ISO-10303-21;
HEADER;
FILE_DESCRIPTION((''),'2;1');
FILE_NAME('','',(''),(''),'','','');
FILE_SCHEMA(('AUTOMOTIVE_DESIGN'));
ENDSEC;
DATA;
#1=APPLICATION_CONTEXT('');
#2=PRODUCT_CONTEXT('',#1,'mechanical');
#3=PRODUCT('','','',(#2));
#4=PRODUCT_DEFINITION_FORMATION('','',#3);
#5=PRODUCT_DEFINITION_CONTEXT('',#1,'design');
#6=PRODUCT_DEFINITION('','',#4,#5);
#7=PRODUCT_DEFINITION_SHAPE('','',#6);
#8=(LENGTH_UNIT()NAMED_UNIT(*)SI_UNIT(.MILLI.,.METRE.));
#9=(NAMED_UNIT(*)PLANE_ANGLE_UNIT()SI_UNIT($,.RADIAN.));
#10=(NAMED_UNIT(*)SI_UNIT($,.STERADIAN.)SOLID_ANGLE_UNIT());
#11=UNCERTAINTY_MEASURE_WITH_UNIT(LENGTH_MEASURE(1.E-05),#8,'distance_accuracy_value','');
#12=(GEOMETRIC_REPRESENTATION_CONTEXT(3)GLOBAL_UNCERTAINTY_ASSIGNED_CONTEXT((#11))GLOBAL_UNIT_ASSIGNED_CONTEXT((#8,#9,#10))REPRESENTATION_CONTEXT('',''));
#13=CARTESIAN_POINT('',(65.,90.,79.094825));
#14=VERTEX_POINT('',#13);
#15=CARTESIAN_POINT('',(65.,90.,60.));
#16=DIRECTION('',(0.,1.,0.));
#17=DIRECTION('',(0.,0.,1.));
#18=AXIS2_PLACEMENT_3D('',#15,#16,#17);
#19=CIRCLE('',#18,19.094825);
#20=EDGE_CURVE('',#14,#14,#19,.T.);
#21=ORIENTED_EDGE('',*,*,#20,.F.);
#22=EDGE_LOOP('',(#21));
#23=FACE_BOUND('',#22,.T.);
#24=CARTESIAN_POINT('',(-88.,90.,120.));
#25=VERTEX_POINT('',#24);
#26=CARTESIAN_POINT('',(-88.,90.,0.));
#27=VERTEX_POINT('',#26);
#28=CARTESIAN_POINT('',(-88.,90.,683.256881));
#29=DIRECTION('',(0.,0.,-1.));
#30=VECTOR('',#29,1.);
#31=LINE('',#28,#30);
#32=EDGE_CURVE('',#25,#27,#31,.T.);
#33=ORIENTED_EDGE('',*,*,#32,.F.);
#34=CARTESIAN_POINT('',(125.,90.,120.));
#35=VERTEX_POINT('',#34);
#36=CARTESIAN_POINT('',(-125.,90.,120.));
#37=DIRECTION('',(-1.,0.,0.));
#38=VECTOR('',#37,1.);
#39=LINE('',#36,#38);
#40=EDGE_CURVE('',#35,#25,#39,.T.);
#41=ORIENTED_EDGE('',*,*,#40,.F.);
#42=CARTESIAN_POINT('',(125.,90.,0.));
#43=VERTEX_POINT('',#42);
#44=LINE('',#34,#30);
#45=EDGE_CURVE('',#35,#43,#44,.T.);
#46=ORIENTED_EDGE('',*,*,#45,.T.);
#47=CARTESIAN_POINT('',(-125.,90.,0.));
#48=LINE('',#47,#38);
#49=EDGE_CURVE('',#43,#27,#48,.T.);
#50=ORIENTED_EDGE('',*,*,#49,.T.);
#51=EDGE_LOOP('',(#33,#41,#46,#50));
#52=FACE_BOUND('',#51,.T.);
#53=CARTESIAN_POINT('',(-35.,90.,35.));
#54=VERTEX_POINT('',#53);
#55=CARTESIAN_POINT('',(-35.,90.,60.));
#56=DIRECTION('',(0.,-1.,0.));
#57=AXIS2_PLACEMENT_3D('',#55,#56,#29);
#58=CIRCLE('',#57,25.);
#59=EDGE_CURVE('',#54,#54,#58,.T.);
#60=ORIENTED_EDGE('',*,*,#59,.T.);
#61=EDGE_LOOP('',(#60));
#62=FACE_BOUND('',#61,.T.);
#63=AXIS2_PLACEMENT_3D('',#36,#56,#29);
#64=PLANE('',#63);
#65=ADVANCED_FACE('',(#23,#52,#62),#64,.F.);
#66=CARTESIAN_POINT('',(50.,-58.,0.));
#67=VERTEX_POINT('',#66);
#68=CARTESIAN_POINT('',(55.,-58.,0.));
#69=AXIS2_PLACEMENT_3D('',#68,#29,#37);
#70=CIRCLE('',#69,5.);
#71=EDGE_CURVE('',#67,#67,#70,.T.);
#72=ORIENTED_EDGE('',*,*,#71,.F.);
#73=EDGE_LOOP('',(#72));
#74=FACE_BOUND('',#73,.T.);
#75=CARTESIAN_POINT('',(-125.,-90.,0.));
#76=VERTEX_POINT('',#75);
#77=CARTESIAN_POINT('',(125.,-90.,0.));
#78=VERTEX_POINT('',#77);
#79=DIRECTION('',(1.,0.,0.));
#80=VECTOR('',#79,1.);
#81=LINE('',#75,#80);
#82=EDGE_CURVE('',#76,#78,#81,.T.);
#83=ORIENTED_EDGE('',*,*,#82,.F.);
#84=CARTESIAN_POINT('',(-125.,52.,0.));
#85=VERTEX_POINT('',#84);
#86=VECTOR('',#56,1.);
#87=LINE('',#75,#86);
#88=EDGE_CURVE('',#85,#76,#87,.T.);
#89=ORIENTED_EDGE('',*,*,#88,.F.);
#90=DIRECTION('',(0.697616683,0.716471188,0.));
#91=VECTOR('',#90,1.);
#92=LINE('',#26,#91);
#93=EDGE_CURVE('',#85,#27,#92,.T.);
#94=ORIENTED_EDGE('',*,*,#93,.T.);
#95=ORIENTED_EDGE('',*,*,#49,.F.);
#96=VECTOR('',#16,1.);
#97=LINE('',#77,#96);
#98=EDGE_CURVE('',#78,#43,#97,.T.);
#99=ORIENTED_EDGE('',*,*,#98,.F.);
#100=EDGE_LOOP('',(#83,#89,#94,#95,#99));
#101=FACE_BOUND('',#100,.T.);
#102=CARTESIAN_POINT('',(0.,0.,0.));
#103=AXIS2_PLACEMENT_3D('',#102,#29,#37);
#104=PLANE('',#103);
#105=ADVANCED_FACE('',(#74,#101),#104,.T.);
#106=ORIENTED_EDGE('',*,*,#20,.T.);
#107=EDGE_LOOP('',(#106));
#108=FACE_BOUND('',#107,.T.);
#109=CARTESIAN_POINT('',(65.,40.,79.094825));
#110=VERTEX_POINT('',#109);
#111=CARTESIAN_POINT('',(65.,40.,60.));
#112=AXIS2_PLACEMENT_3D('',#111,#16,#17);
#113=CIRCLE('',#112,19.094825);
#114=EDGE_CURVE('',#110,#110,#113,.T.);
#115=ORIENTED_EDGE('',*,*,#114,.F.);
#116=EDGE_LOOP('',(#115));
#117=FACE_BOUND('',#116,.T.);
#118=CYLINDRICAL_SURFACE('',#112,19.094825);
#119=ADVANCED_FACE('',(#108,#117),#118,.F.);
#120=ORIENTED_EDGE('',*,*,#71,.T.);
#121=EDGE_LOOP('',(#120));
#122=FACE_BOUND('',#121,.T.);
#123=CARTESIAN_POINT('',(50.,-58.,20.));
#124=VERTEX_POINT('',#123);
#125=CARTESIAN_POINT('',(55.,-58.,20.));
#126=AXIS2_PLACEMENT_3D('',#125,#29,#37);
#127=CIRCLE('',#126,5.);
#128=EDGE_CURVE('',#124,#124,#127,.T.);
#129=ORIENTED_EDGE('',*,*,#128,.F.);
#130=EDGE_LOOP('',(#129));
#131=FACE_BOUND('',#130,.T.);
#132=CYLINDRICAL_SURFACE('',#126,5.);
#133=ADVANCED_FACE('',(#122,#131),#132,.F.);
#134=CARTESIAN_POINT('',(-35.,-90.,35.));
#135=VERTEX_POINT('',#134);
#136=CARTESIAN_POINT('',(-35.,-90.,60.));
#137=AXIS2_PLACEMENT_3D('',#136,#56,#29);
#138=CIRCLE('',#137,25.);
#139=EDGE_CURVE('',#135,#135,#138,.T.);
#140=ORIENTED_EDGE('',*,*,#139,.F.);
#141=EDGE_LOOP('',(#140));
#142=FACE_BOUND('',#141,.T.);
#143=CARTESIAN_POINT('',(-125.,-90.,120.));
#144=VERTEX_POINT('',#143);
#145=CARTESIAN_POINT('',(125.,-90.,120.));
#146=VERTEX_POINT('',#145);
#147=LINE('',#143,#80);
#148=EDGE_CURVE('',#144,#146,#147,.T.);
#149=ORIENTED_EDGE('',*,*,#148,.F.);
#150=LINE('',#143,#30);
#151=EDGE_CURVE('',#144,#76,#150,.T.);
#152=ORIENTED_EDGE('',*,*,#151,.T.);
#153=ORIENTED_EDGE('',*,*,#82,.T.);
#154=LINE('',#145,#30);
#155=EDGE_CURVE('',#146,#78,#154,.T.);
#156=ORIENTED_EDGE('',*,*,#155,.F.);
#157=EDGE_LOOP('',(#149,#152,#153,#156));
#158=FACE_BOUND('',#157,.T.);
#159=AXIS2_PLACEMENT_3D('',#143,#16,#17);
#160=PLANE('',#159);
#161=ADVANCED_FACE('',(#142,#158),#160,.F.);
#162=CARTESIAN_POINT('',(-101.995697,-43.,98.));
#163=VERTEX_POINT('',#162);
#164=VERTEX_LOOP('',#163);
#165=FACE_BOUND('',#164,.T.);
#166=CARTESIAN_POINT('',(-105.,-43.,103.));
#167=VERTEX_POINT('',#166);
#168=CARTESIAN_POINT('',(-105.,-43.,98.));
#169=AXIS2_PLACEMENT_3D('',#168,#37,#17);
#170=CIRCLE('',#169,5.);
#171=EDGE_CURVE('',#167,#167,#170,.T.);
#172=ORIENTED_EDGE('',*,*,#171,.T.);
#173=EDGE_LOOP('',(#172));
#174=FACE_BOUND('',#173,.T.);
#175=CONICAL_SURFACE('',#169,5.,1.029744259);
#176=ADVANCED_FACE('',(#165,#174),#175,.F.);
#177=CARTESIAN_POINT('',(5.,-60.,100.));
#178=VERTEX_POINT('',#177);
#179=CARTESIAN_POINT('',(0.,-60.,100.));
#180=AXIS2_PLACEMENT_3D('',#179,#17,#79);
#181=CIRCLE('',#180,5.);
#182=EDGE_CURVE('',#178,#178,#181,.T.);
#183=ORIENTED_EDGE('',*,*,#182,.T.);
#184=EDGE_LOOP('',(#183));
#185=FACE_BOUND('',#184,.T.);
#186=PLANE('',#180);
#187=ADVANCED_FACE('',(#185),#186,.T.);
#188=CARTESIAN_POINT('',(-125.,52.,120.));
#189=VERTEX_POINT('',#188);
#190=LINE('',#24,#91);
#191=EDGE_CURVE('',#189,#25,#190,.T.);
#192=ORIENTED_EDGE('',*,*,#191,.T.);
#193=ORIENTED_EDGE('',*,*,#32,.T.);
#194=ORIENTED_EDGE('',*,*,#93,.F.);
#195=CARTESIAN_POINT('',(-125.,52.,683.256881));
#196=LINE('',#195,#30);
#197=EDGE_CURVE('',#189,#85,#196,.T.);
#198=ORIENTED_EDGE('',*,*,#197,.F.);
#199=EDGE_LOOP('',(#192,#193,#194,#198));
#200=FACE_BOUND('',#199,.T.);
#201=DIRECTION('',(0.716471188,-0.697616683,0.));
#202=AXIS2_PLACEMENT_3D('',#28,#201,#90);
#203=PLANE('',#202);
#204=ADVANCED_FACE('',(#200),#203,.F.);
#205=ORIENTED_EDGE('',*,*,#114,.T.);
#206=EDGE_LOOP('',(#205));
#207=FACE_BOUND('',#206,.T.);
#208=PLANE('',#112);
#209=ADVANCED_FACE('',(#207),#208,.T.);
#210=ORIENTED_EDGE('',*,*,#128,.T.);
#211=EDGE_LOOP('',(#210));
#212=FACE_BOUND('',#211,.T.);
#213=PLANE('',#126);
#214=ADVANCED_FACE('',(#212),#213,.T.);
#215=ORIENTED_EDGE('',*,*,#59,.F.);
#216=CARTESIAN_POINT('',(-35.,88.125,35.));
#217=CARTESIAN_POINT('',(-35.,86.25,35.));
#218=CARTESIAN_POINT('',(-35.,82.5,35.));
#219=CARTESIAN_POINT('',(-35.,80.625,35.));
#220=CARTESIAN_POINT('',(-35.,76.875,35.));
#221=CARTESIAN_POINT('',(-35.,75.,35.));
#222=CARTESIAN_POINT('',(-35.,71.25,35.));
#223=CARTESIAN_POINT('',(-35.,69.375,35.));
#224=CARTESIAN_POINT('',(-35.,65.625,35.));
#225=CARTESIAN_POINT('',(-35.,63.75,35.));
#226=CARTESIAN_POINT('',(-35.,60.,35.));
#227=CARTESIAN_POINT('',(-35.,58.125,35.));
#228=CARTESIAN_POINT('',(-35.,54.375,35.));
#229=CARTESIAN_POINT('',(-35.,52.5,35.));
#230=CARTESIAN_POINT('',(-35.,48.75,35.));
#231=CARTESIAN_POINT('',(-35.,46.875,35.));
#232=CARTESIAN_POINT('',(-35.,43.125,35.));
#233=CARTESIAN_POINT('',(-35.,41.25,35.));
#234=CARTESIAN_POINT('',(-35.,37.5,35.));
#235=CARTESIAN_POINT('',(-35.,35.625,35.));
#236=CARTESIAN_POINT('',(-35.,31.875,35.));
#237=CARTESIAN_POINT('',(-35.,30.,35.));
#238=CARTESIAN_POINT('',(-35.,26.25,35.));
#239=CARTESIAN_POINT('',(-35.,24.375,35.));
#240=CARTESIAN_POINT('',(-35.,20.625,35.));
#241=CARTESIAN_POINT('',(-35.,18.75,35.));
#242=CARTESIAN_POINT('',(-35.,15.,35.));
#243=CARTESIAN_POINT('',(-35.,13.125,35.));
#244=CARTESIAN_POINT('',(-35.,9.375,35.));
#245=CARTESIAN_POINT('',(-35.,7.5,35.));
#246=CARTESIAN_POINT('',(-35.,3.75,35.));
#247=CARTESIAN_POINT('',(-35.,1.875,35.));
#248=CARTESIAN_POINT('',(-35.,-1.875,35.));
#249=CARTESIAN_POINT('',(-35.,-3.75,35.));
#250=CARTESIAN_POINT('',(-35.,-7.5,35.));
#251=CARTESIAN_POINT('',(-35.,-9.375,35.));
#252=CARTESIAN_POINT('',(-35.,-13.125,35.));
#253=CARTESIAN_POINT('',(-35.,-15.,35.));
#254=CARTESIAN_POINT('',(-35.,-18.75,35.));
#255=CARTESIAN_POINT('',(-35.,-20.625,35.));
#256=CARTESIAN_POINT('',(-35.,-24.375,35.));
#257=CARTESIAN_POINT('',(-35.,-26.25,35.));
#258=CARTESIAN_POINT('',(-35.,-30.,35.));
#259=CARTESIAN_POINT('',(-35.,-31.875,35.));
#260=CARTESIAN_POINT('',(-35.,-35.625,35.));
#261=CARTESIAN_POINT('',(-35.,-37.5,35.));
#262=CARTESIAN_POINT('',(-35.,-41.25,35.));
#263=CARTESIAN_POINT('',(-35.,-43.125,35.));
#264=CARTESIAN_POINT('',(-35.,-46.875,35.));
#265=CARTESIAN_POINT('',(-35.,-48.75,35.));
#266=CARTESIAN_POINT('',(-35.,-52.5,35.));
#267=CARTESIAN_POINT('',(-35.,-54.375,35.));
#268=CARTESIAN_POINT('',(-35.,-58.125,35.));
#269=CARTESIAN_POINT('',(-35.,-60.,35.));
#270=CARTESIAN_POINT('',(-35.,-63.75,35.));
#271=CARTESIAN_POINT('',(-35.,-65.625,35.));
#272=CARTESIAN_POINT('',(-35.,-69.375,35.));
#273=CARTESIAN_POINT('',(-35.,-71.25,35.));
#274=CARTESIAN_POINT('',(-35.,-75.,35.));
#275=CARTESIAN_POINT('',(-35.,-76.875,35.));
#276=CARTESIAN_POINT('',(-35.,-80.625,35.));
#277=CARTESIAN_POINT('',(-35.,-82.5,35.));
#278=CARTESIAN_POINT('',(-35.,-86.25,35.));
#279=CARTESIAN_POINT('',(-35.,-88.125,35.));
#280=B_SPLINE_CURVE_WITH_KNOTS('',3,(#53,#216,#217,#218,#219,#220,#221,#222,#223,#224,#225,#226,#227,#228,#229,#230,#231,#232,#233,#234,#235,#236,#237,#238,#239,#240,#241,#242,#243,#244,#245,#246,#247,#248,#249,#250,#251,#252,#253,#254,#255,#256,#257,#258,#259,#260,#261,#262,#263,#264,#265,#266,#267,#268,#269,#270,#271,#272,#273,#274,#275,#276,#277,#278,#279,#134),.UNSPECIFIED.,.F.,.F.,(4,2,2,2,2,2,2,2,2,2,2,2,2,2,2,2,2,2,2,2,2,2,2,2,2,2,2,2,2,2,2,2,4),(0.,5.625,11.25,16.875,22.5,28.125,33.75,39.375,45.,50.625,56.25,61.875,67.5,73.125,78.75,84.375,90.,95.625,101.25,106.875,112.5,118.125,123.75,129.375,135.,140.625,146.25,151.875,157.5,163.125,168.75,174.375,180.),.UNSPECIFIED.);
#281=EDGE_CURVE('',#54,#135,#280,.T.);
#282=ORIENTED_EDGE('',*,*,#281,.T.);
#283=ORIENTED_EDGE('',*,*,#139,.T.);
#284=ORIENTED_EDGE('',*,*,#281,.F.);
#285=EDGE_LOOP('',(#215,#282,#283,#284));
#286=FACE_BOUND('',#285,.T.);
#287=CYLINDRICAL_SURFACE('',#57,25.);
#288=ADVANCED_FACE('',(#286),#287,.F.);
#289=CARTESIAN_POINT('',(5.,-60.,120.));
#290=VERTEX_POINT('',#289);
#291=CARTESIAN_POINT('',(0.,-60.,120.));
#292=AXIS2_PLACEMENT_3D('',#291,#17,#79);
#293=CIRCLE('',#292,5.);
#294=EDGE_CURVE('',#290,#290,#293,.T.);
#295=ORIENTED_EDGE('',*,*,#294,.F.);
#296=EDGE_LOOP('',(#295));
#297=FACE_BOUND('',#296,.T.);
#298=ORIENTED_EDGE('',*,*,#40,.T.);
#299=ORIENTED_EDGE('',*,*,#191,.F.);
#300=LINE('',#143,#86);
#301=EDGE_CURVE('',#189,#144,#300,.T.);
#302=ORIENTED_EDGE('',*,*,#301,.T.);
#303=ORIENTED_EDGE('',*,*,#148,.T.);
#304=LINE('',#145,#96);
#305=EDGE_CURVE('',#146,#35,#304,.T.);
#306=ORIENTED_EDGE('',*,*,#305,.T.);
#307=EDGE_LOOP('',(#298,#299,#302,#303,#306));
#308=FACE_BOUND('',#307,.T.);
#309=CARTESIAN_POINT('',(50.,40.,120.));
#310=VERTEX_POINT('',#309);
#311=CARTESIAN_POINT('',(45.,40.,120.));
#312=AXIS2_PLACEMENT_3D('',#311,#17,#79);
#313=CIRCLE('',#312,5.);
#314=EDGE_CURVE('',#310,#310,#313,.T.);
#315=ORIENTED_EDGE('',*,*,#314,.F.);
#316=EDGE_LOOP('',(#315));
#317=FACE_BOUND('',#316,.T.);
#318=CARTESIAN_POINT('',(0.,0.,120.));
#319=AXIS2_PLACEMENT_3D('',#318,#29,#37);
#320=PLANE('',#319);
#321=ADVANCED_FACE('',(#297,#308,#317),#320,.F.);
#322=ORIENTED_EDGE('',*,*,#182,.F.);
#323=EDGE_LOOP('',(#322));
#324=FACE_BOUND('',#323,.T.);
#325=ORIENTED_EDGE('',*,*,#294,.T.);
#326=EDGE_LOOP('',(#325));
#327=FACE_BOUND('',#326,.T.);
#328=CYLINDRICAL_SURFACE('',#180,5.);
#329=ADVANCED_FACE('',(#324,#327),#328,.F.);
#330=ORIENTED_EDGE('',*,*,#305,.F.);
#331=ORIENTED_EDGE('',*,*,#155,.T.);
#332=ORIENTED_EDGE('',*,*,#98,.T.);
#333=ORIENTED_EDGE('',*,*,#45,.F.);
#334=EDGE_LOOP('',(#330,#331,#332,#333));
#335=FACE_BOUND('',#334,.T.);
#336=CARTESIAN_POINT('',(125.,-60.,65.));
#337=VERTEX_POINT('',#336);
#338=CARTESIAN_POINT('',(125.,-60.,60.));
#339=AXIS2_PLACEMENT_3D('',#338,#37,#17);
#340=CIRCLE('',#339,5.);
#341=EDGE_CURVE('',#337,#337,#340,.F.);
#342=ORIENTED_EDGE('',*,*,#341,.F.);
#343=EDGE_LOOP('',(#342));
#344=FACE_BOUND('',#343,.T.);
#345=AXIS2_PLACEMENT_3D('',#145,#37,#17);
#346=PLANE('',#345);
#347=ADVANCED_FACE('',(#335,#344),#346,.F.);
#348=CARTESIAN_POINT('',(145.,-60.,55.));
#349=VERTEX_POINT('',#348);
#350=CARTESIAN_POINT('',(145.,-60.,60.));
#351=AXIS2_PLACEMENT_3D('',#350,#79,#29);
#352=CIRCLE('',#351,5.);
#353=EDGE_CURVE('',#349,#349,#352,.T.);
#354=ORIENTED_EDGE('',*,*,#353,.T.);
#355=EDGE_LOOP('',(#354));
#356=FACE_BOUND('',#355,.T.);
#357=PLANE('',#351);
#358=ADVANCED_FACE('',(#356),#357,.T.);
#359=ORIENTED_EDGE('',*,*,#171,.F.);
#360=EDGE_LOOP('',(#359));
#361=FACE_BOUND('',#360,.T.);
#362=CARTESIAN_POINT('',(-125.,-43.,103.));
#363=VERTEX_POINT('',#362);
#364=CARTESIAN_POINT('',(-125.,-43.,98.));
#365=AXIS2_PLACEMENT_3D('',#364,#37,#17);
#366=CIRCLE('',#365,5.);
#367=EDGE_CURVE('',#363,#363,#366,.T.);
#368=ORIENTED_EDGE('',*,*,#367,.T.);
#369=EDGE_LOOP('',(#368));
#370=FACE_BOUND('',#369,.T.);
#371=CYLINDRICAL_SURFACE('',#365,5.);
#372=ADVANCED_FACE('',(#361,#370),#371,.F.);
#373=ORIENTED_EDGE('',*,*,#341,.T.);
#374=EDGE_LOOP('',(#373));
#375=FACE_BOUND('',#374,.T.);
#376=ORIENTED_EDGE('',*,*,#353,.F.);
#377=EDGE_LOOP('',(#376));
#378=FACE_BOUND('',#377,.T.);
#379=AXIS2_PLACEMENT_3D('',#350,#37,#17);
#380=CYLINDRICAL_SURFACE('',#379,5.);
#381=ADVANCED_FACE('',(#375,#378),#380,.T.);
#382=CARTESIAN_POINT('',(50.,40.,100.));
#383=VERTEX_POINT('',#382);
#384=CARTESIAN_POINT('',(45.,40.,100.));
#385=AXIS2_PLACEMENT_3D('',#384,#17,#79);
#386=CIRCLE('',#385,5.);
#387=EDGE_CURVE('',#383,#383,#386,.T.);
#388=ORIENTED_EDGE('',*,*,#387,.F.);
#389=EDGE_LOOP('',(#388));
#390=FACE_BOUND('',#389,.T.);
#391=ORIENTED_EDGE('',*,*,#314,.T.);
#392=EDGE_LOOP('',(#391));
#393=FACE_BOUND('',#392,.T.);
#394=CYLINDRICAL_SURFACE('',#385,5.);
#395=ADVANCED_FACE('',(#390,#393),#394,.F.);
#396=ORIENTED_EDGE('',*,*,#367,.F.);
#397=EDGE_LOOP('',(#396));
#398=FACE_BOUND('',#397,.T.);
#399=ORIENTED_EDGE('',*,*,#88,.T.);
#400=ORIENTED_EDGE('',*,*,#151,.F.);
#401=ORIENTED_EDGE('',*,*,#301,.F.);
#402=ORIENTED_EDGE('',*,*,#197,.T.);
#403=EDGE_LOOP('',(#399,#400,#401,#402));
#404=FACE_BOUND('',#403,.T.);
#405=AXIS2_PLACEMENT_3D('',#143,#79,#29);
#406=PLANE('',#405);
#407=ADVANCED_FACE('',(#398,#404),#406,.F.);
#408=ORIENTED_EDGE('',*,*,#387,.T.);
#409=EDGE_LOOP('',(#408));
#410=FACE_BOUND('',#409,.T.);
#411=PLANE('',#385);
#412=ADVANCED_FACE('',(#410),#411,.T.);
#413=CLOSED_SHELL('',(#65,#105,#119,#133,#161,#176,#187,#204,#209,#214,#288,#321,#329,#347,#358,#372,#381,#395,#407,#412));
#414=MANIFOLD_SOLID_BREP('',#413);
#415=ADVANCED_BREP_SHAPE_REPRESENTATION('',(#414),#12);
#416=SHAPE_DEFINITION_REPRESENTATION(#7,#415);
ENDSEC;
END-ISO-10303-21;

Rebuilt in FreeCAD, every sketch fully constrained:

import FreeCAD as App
import Part
import Sketcher
from FreeCAD import Vector


def add_polygon(sketch, points):
    """Adds a closed chain of lines whose ends are joined by coincident constraints."""
    first, n = sketch.GeometryCount, len(points)
    for a, b in zip(points, points[1:] + points[:1]):
        sketch.addGeometry(Part.LineSegment(App.Vector(*a, 0), App.Vector(*b, 0)), False)
    for i in range(n):
        sketch.addConstraint(Sketcher.Constraint("Coincident", first + i, 2, first + (i + 1) % n, 1))

doc = App.newDocument("Part")
body = doc.addObject("PartDesign::Body", "Body")

sketch1 = body.newObject("Sketcher::SketchObject", "Sketch")
sketch1.AttachmentSupport = (doc.getObject("XY_Plane"), [""])
sketch1.MapMode = "FlatFace"
add_polygon(sketch1, [(-125, 90), (-125, -90), (125, -90), (125, 90)])
sketch1.addConstraint([
    Sketcher.Constraint("Vertical", 0),
    Sketcher.Constraint("Horizontal", 1),
    Sketcher.Constraint("Vertical", 2),
    Sketcher.Constraint("Horizontal", 3),
    Sketcher.Constraint("Symmetric", 0, 2, 2, 2, -1, 1),
    Sketcher.Constraint("DistanceX", 1, 1, 1, 2, 250.0),
    Sketcher.Constraint("DistanceY", 0, 2, 0, 1, 180.0),
])
pad1 = body.newObject("PartDesign::Pad", "Pad")
pad1.Profile = sketch1
pad1.Length = 120

sketch2 = body.newObject("Sketcher::SketchObject", "Sketch001")
sketch2.AttachmentSupport = (doc.getObject("XY_Plane"), [""])
sketch2.MapMode = "FlatFace"
sketch2.AttachmentOffset = App.Placement(Vector(0, 0, 120), App.Rotation())
add_polygon(sketch2, [(-533.124565, -367.154958), (320.124565, 509.154958), (-518.185352, 1325.404087), (-1371.434481, 449.094171)])
sketch2.addConstraint([
    Sketcher.Constraint("Perpendicular", 0, 1),
    Sketcher.Constraint("Perpendicular", 1, 2),
    Sketcher.Constraint("Perpendicular", 2, 3),
    Sketcher.Constraint("Distance", 1, 1170.053912),
    Sketcher.Constraint("DistanceY", -1, 1, 0, 2, 509.154958),
    Sketcher.Constraint("DistanceX", 1, 2, -1, 1, 518.185352),
    Sketcher.Constraint("DistanceX", 2, 2, -1, 1, 1371.434481),
    Sketcher.Constraint("DistanceY", -1, 1, 2, 2, 449.094171),
])
pocket1 = body.newObject("PartDesign::Pocket", "Pocket")
pocket1.Profile = sketch2
pocket1.Type = "ThroughAll"
pocket1.Midplane = True

sketch3 = body.newObject("Sketcher::SketchObject", "Sketch002")
sketch3.AttachmentSupport = (doc.getObject("XY_Plane"), [""])
sketch3.MapMode = "FlatFace"
sketch3.AttachmentOffset = App.Placement(Vector(0, 0, 120), App.Rotation())
sketch3.addGeometry(Part.Circle(Vector(45, 40, 0), Vector(0, 0, 1), 5), False)
sketch3.addConstraint([
    Sketcher.Constraint("Diameter", 0, 10.0),
    Sketcher.Constraint("DistanceX", -1, 1, 0, 3, 45.0),
    Sketcher.Constraint("DistanceY", -1, 1, 0, 3, 40.0),
])
pocket2 = body.newObject("PartDesign::Pocket", "Pocket001")
pocket2.Profile = sketch3
pocket2.Length = 20

sketch4 = body.newObject("Sketcher::SketchObject", "Sketch003")
sketch4.AttachmentSupport = (doc.getObject("XY_Plane"), [""])
sketch4.MapMode = "FlatFace"
sketch4.AttachmentOffset = App.Placement(Vector(0, 0, 120), App.Rotation())
sketch4.addGeometry(Part.Circle(Vector(0, -60, 0), Vector(0, 0, 1), 5), False)
sketch4.addConstraint([
    Sketcher.Constraint("PointOnObject", 0, 3, -2),
    Sketcher.Constraint("Diameter", 0, 10.0),
    Sketcher.Constraint("DistanceY", 0, 3, -1, 1, 60.0),
])
pocket3 = body.newObject("PartDesign::Pocket", "Pocket002")
pocket3.Profile = sketch4
pocket3.Length = 20

sketch5 = body.newObject("Sketcher::SketchObject", "Sketch004")
sketch5.AttachmentSupport = (doc.getObject("XY_Plane"), [""])
sketch5.MapMode = "FlatFace"
sketch5.addGeometry(Part.Circle(Vector(55, -58, 0), Vector(0, 0, 1), 5), False)
sketch5.addConstraint([
    Sketcher.Constraint("Diameter", 0, 10.0),
    Sketcher.Constraint("DistanceX", -1, 1, 0, 3, 55.0),
    Sketcher.Constraint("DistanceY", 0, 3, -1, 1, 58.0),
])
pocket4 = body.newObject("PartDesign::Pocket", "Pocket003")
pocket4.Profile = sketch5
pocket4.Length = 20
pocket4.Reversed = True

sketch6 = body.newObject("Sketcher::SketchObject", "Sketch005")
sketch6.AttachmentSupport = (doc.getObject("XZ_Plane"), [""])
sketch6.MapMode = "FlatFace"
sketch6.AttachmentOffset = App.Placement(Vector(0, 0, 90), App.Rotation())
sketch6.addGeometry(Part.Circle(Vector(-35, 60, 0), Vector(0, 0, 1), 25), False)
sketch6.addConstraint([
    Sketcher.Constraint("Diameter", 0, 50.0),
    Sketcher.Constraint("DistanceX", 0, 3, -1, 1, 35.0),
    Sketcher.Constraint("DistanceY", -1, 1, 0, 3, 60.0),
])
pocket5 = body.newObject("PartDesign::Pocket", "Pocket004")
pocket5.Profile = sketch6
pocket5.Type = "ThroughAll"

sketch7 = body.newObject("Sketcher::SketchObject", "Sketch006")
sketch7.AttachmentSupport = (doc.getObject("YZ_Plane"), [""])
sketch7.MapMode = "FlatFace"
sketch7.AttachmentOffset = App.Placement(Vector(0, 0, 125), App.Rotation())
sketch7.addGeometry(Part.Circle(Vector(-60, 60, 0), Vector(0, 0, 1), 5), False)
sketch7.addConstraint([
    Sketcher.Constraint("Diameter", 0, 10.0),
    Sketcher.Constraint("DistanceX", 0, 3, -1, 1, 60.0),
    Sketcher.Constraint("DistanceY", -1, 1, 0, 3, 60.0),
])
pad2 = body.newObject("PartDesign::Pad", "Pad001")
pad2.Profile = sketch7
pad2.Length = 20

sketch8 = body.newObject("Sketcher::SketchObject", "Sketch007")
sketch8.AttachmentSupport = (doc.getObject("YZ_Plane"), [""])
sketch8.MapMode = "FlatFace"
sketch8.AttachmentOffset = App.Placement(Vector(0, 0, -125), App.Rotation())
sketch8.addGeometry(Part.Circle(Vector(-43, 98, 0), Vector(0, 0, 1), 5), False)
sketch8.addConstraint([
    Sketcher.Constraint("Diameter", 0, 10.0),
    Sketcher.Constraint("DistanceX", 0, 3, -1, 1, 43.0),
    Sketcher.Constraint("DistanceY", -1, 1, 0, 3, 98.0),
])
doc.recompute()
hole = body.newObject("PartDesign::Hole", "Hole")
hole.Profile = sketch8
hole.ThreadType = "None"
hole.Diameter = 10
hole.DepthType = "Dimension"
hole.Depth = 20
hole.DrillPoint = "Angled"
hole.DrillPointAngle = 118
hole.Reversed = True

sketch9 = body.newObject("Sketcher::SketchObject", "Sketch008")
sketch9.AttachmentSupport = (doc.getObject("XZ_Plane"), [""])
sketch9.MapMode = "FlatFace"
sketch9.AttachmentOffset = App.Placement(Vector(0, 0, -90), App.Rotation())
sketch9.addGeometry(Part.Circle(Vector(65, 60, 0), Vector(0, 0, 1), 19.094825), False)
sketch9.addConstraint([
    Sketcher.Constraint("DistanceX", -1, 1, 0, 3, 65.0),
    Sketcher.Constraint("DistanceY", -1, 1, 0, 3, 60.0),
    Sketcher.Constraint("Diameter", 0, 38.18965),
])
pocket6 = body.newObject("PartDesign::Pocket", "Pocket005")
pocket6.Profile = sketch9
pocket6.Length = 50
pocket6.Reversed = True

doc.recompute()
